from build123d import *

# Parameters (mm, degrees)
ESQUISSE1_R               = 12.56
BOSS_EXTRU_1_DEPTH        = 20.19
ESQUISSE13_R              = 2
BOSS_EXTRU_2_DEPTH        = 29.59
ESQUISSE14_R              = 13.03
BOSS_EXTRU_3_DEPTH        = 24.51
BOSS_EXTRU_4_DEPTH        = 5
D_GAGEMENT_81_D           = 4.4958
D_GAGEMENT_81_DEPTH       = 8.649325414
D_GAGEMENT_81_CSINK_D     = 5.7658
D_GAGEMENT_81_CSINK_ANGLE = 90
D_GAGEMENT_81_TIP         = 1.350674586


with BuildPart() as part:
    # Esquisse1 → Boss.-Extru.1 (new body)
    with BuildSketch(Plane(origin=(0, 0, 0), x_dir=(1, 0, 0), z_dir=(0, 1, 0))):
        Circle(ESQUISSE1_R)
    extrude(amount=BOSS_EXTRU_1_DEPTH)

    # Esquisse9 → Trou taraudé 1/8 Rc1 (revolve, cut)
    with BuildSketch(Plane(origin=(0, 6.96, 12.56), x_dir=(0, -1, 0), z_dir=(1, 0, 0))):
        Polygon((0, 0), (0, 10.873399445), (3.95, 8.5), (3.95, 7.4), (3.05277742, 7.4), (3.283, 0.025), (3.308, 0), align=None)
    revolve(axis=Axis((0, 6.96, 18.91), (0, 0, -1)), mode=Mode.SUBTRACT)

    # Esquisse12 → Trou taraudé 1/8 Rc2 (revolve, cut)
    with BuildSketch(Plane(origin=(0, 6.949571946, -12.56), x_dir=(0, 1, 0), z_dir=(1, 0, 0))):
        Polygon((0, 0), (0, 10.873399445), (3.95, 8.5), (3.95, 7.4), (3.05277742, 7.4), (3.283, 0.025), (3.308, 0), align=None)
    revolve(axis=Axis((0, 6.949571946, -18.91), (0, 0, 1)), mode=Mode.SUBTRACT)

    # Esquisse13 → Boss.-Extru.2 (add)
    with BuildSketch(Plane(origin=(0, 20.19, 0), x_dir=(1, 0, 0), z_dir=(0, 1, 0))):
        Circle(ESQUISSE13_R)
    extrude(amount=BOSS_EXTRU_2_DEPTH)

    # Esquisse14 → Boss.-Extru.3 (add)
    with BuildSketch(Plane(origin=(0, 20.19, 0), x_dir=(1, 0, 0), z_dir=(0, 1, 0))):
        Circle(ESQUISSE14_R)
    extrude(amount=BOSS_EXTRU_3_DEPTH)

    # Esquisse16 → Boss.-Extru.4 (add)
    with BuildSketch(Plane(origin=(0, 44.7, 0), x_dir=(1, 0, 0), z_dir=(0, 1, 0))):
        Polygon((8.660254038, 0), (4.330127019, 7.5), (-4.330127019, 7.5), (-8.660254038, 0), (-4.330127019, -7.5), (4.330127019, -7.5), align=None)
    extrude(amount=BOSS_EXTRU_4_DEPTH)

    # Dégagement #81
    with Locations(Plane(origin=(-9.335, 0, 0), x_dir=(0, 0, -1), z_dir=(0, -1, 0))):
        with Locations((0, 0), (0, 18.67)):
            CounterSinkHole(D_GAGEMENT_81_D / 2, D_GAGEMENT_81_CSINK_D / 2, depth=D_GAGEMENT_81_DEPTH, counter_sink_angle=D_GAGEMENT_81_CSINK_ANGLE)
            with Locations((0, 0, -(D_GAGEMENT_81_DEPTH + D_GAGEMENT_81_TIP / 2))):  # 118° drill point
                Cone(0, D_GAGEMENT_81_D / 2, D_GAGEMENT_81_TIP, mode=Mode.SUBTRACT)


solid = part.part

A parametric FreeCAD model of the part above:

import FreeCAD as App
import Part
import Sketcher

V = App.Vector
Q = App.Units.Quantity

doc = App.newDocument("Part")
body = doc.addObject("PartDesign::Body", "Body")

# Sketch on XZ plane
sketch1 = body.newObject("Sketcher::SketchObject", "Sketch")
sketch1.AttachmentSupport = (doc.getObject("XZ_Plane"), [""])
sketch1.MapMode = "FlatFace"
sketch1.addGeometry(Part.Circle(V(0, 0, 0), V(0, 0, 1), 13), False)
sketch1.addConstraint(Sketcher.Constraint("Coincident", 0, 3, -1, 1))
sketch1.addConstraint(Sketcher.Constraint("Diameter", 0, 25.12))
pad1 = body.newObject("PartDesign::Pad", "Pad")
pad1.Profile = sketch1
pad1.Length = 20.19
pad1.Reversed = True

# Sketch on YZ plane
sketch2 = body.newObject("Sketcher::SketchObject", "Sketch001")
sketch2.AttachmentSupport = (doc.getObject("YZ_Plane"), [""])
sketch2.MapMode = "FlatFace"
sketch2.addGeometry(Part.LineSegment(V(6.96, 1.687, 0), V(6.96, 12.56, 0)), False)
sketch2.addGeometry(Part.LineSegment(V(6.96, 12.56, 0), V(3.652, 12.56, 0)), False)
sketch2.addGeometry(Part.LineSegment(V(3.652, 12.56, 0), V(3.677, 12.535, 0)), False)
sketch2.addGeometry(Part.LineSegment(V(3.677, 12.535, 0), V(3.907, 5.16, 0)), False)
sketch2.addGeometry(Part.LineSegment(V(3.907, 5.16, 0), V(3.01, 5.16, 0)), False)
sketch2.addGeometry(Part.LineSegment(V(3.01, 5.16, 0), V(3.01, 4.06, 0)), False)
sketch2.addGeometry(Part.LineSegment(V(3.01, 4.06, 0), V(6.96, 1.687, 0)), False)
sketch2.addGeometry(Part.LineSegment(V(6.96, 12.56, 0), V(6.96, 1.687, 0)), True)  # axis
sketch2.addConstraint(Sketcher.Constraint("Coincident", 0, 2, 1, 1))
sketch2.addConstraint(Sketcher.Constraint("Coincident", 1, 2, 2, 1))
sketch2.addConstraint(Sketcher.Constraint("Coincident", 2, 2, 3, 1))
sketch2.addConstraint(Sketcher.Constraint("Coincident", 3, 2, 4, 1))
sketch2.addConstraint(Sketcher.Constraint("Coincident", 4, 2, 5, 1))
sketch2.addConstraint(Sketcher.Constraint("Coincident", 5, 2, 6, 1))
sketch2.addConstraint(Sketcher.Constraint("Coincident", 6, 2, 0, 1))
sketch2.addConstraint(Sketcher.Constraint("Vertical", 0))
sketch2.addConstraint(Sketcher.Constraint("Horizontal", 1))
sketch2.addConstraint(Sketcher.Constraint("Horizontal", 4))
sketch2.addConstraint(Sketcher.Constraint("Vertical", 5))
sketch2.addConstraint(Sketcher.Constraint("Vertical", 7))
sketch2.addConstraint(Sketcher.Constraint("Coincident", 7, 1, 0, 2))
sketch2.addConstraint(Sketcher.Constraint("Equal", 0, 7))
sketch2.addConstraint(Sketcher.Constraint("Angle", 2, Q("-45 deg")))
sketch2.addConstraint(Sketcher.Constraint("Angle", 6, Q("-31 deg")))
sketch2.addConstraint(Sketcher.Constraint("DistanceY", 5, 2, 5, 1, 1.1))
sketch2.addConstraint(Sketcher.Constraint("DistanceY", 3, 2, 1, 2, 7.4))
sketch2.addConstraint(Sketcher.Constraint("DistanceX", 1, 2, 1, 1, 3.308))
sketch2.addConstraint(Sketcher.Constraint("DistanceX", -1, 1, 0, 2, 6.96))
sketch2.addConstraint(Sketcher.Constraint("DistanceY", -1, 1, 0, 2, 12.56))
sketch2.addConstraint(Sketcher.Constraint("DistanceX", -1, 1, 4, 2, 3.01))
sketch2.addConstraint(Sketcher.Constraint("DistanceX", -1, 1, 2, 2, 3.677))
sketch2.addConstraint(Sketcher.Constraint("DistanceX", 4, 2, 4, 1, 0.897223))
groove = body.newObject("PartDesign::Groove", "Groove")
groove.Profile = sketch2
groove.ReferenceAxis = (sketch2, ["Axis0"])
groove.Angle = 360

# Sketch on YZ plane
sketch3 = body.newObject("Sketcher::SketchObject", "Sketch002")
sketch3.AttachmentSupport = (doc.getObject("YZ_Plane"), [""])
sketch3.MapMode = "FlatFace"
sketch3.addGeometry(Part.LineSegment(V(6.95, -1.687, 0), V(6.95, -12.56, 0)), False)
sketch3.addGeometry(Part.LineSegment(V(6.95, -12.56, 0), V(10.258, -12.56, 0)), False)
sketch3.addGeometry(Part.LineSegment(V(10.258, -12.56, 0), V(10.233, -12.535, 0)), False)
sketch3.addGeometry(Part.LineSegment(V(10.233, -12.535, 0), V(10.002, -5.16, 0)), False)
sketch3.addGeometry(Part.LineSegment(V(10.002, -5.16, 0), V(10.9, -5.16, 0)), False)
sketch3.addGeometry(Part.LineSegment(V(10.9, -5.16, 0), V(10.9, -4.06, 0)), False)
sketch3.addGeometry(Part.LineSegment(V(10.9, -4.06, 0), V(6.95, -1.687, 0)), False)
sketch3.addGeometry(Part.LineSegment(V(6.95, -12.56, 0), V(6.95, -1.687, 0)), True)  # axis
sketch3.addConstraint(Sketcher.Constraint("Coincident", 0, 2, 1, 1))
sketch3.addConstraint(Sketcher.Constraint("Coincident", 1, 2, 2, 1))
sketch3.addConstraint(Sketcher.Constraint("Coincident", 2, 2, 3, 1))
sketch3.addConstraint(Sketcher.Constraint("Coincident", 3, 2, 4, 1))
sketch3.addConstraint(Sketcher.Constraint("Coincident", 4, 2, 5, 1))
sketch3.addConstraint(Sketcher.Constraint("Coincident", 5, 2, 6, 1))
sketch3.addConstraint(Sketcher.Constraint("Coincident", 6, 2, 0, 1))
sketch3.addConstraint(Sketcher.Constraint("Vertical", 0))
sketch3.addConstraint(Sketcher.Constraint("Horizontal", 1))
sketch3.addConstraint(Sketcher.Constraint("Horizontal", 4))
sketch3.addConstraint(Sketcher.Constraint("Vertical", 5))
sketch3.addConstraint(Sketcher.Constraint("Vertical", 7))
sketch3.addConstraint(Sketcher.Constraint("Coincident", 7, 1, 0, 2))
sketch3.addConstraint(Sketcher.Constraint("Equal", 0, 7))
sketch3.addConstraint(Sketcher.Constraint("Angle", 2, Q("135 deg")))
sketch3.addConstraint(Sketcher.Constraint("Angle", 6, Q("149 deg")))
sketch3.addConstraint(Sketcher.Constraint("DistanceY", 5, 1, 5, 2, 1.1))
sketch3.addConstraint(Sketcher.Constraint("DistanceY", 1, 2, 3, 2, 7.4))
sketch3.addConstraint(Sketcher.Constraint("DistanceX", 1, 1, 1, 2, 3.308))
sketch3.addConstraint(Sketcher.Constraint("DistanceY", 0, 2, -1, 1, 12.56))
sketch3.addConstraint(Sketcher.Constraint("DistanceX", 0, 2, 4, 2, 3.95))
sketch3.addConstraint(Sketcher.Constraint("DistanceY", 2, 2, -1, 1, 12.535))
sketch3.addConstraint(Sketcher.Constraint("DistanceX", 4, 1, 4, 2, 0.897223))
sketch3.addConstraint(Sketcher.Constraint("DistanceX", -1, 1, 0, 2, 6.949572))
groove2 = body.newObject("PartDesign::Groove", "Groove001")
groove2.Profile = sketch3
groove2.ReferenceAxis = (sketch3, ["Axis0"])
groove2.Angle = 360

# Sketch on XZ plane
sketch4 = body.newObject("Sketcher::SketchObject", "Sketch003")
sketch4.AttachmentSupport = (doc.getObject("XZ_Plane"), [""])
sketch4.MapMode = "FlatFace"
sketch4.AttachmentOffset = App.Placement(V(0, 0, -20.19), App.Rotation())
sketch4.addGeometry(Part.Circle(V(0, 0, 0), V(0, 0, 1), 2), False)
sketch4.addConstraint(Sketcher.Constraint("Coincident", 0, 3, -1, 1))
sketch4.addConstraint(Sketcher.Constraint("Diameter", 0, 4.0))
pad2 = body.newObject("PartDesign::Pad", "Pad001")
pad2.Profile = sketch4
pad2.Length = 29.59
pad2.Reversed = True

# Sketch on XZ plane
sketch5 = body.newObject("Sketcher::SketchObject", "Sketch004")
sketch5.AttachmentSupport = (doc.getObject("XZ_Plane"), [""])
sketch5.MapMode = "FlatFace"
sketch5.AttachmentOffset = App.Placement(V(0, 0, -20.19), App.Rotation())
sketch5.addGeometry(Part.Circle(V(0, 0, 0), V(0, 0, 1), 13), False)
sketch5.addConstraint(Sketcher.Constraint("Coincident", 0, 3, -1, 1))
sketch5.addConstraint(Sketcher.Constraint("Diameter", 0, 26.06))
pad3 = body.newObject("PartDesign::Pad", "Pad002")
pad3.Profile = sketch5
pad3.Length = 24.51
pad3.Reversed = True

# Sketch on XZ plane
sketch6 = body.newObject("Sketcher::SketchObject", "Sketch005")
sketch6.AttachmentSupport = (doc.getObject("XZ_Plane"), [""])
sketch6.MapMode = "FlatFace"
sketch6.AttachmentOffset = App.Placement(V(0, 0, -44.7), App.Rotation())
sketch6.addGeometry(Part.LineSegment(V(9, 0, 0), V(4, -8, 0)), False)
sketch6.addGeometry(Part.LineSegment(V(4, -8, 0), V(-4, -8, 0)), False)
sketch6.addGeometry(Part.LineSegment(V(-4, -8, 0), V(-9, 0, 0)), False)
sketch6.addGeometry(Part.LineSegment(V(-9, 0, 0), V(-4, 8, 0)), False)
sketch6.addGeometry(Part.LineSegment(V(-4, 8, 0), V(4, 8, 0)), False)
sketch6.addGeometry(Part.LineSegment(V(4, 8, 0), V(9, 0, 0)), False)
sketch6.addConstraint(Sketcher.Constraint("Coincident", 0, 2, 1, 1))
sketch6.addConstraint(Sketcher.Constraint("Coincident", 1, 2, 2, 1))
sketch6.addConstraint(Sketcher.Constraint("Coincident", 2, 2, 3, 1))
sketch6.addConstraint(Sketcher.Constraint("Coincident", 3, 2, 4, 1))
sketch6.addConstraint(Sketcher.Constraint("Coincident", 4, 2, 5, 1))
sketch6.addConstraint(Sketcher.Constraint("Coincident", 5, 2, 0, 1))
sketch6.addConstraint(Sketcher.Constraint("Horizontal", 1))
sketch6.addConstraint(Sketcher.Constraint("Horizontal", 4))
sketch6.addConstraint(Sketcher.Constraint("Symmetric", 0, 2, 3, 2, -1, 1))
sketch6.addConstraint(Sketcher.Constraint("Symmetric", 2, 2, 5, 2, -1, 1))
sketch6.addConstraint(Sketcher.Constraint("PointOnObject", 2, 2, -1))
sketch6.addConstraint(Sketcher.Constraint("Parallel", 2, 5))
sketch6.addConstraint(Sketcher.Constraint("Vertical", 1, 2, 3, 2))
sketch6.addConstraint(Sketcher.Constraint("Angle", 0, Q("-120 deg")))
sketch6.addConstraint(Sketcher.Constraint("DistanceY", 1, 2, 3, 2, 15.0))
sketch6.addConstraint(Sketcher.Constraint("DistanceX", 1, 2, 1, 1, 8.660254))
pad4 = body.newObject("PartDesign::Pad", "Pad003")
pad4.Profile = sketch6
pad4.Length = 5
pad4.Reversed = True

# Sketch on XZ plane
sketch7 = body.newObject("Sketcher::SketchObject", "Sketch006")
sketch7.AttachmentSupport = (doc.getObject("XZ_Plane"), [""])
sketch7.MapMode = "FlatFace"
sketch7.addGeometry(Part.Circle(V(-9.3, 0, 0), V(0, 0, 1), 2.2), False)
sketch7.addGeometry(Part.Circle(V(9.3, 0, 0), V(0, 0, 1), 2.2), False)
sketch7.addConstraint(Sketcher.Constraint("Equal", 0, 1))
sketch7.addConstraint(Sketcher.Constraint("Symmetric", 0, 3, 1, 3, -1, 1))
sketch7.addConstraint(Sketcher.Constraint("PointOnObject", 0, 3, -1))
sketch7.addConstraint(Sketcher.Constraint("Diameter", 0, 4.4958))
sketch7.addConstraint(Sketcher.Constraint("DistanceX", 0, 3, 1, 3, 18.67))
doc.recompute()
hole = body.newObject("PartDesign::Hole", "Hole")
hole.Profile = sketch7
hole.ThreadType = "None"
hole.Diameter = 4.4958
hole.DepthType = "Dimension"
hole.Depth = 8.649325
hole.DrillPoint = "Angled"
hole.DrillPointAngle = 118
hole.HoleCutType = "Countersink"
hole.HoleCutDiameter = 5.7658
hole.HoleCutCountersinkAngle = 90

doc.recompute()
